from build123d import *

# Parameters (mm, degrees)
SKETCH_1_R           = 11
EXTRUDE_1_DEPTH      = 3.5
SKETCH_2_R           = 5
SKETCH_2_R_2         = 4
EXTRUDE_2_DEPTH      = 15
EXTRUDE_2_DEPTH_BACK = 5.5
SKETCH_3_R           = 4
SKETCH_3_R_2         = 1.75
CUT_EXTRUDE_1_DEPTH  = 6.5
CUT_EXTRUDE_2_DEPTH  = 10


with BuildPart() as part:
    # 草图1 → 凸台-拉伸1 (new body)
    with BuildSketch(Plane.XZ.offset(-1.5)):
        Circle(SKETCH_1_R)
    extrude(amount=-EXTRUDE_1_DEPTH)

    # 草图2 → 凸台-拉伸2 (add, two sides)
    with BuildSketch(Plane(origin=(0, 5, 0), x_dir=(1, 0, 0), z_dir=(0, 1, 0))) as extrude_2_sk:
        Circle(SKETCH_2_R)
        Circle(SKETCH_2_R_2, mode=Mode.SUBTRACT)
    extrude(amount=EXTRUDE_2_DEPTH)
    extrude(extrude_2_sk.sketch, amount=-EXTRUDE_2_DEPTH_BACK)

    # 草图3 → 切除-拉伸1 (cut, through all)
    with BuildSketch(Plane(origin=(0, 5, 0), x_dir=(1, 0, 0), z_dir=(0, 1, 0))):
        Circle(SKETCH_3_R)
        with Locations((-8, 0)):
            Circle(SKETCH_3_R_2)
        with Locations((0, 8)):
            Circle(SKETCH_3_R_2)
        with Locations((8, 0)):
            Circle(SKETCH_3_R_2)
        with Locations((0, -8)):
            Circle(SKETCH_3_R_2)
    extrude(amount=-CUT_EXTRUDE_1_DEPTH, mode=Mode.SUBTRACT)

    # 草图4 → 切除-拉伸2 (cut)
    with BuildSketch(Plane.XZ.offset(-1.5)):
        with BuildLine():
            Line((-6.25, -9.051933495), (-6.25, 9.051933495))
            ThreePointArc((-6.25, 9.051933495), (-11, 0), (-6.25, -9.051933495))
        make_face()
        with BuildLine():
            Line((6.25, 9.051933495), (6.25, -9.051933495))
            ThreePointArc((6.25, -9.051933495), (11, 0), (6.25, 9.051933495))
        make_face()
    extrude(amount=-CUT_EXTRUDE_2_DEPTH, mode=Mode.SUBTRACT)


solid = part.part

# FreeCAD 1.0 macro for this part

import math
import FreeCAD as App
import Part
import Sketcher

doc = App.newDocument("Part")
body = doc.addObject("PartDesign::Body", "Body")

sketch1 = doc.addObject("Sketcher::SketchObject", "Sketch")
body.addObject(sketch1)
sketch1.AttachmentSupport = (doc.XZ_Plane, [""])
sketch1.MapMode = "FlatFace"
sketch1.AttachmentOffset = App.Placement(App.Vector(0, 0, -1.5), App.Rotation())
sketch1.addGeometry(Part.Circle(App.Vector(0, 0, 0), App.Vector(0, 0, 1), 11), False)
sketch1.addConstraint(Sketcher.Constraint("Coincident", 0, 3, -1, 1))
sketch1.addConstraint(Sketcher.Constraint("Diameter", 0, 22.0))
pad1 = doc.addObject("PartDesign::Pad", "Pad")
body.addObject(pad1)
pad1.Profile = sketch1
pad1.Length = 3.5
pad1.Reversed = True

sketch2 = doc.addObject("Sketcher::SketchObject", "Sketch001")
body.addObject(sketch2)
sketch2.AttachmentSupport = (doc.XZ_Plane, [""])
sketch2.MapMode = "FlatFace"
sketch2.AttachmentOffset = App.Placement(App.Vector(0, 0, -5), App.Rotation())
sketch2.addGeometry(Part.Circle(App.Vector(0, 0, 0), App.Vector(0, 0, 1), 5), False)
sketch2.addGeometry(Part.Circle(App.Vector(0, 0, 0), App.Vector(0, 0, 1), 4), False)
sketch2.addConstraint(Sketcher.Constraint("Coincident", 0, 3, -1, 1))
sketch2.addConstraint(Sketcher.Constraint("Coincident", 1, 3, -1, 1))
sketch2.addConstraint(Sketcher.Constraint("Diameter", 0, 10.0))
sketch2.addConstraint(Sketcher.Constraint("Diameter", 1, 8.0))
pad2 = doc.addObject("PartDesign::Pad", "Pad001")
body.addObject(pad2)
pad2.Profile = sketch2
pad2.Type = "TwoLengths"
pad2.Length = 15
pad2.Length2 = 5.5
pad2.Reversed = True

sketch3 = doc.addObject("Sketcher::SketchObject", "Sketch002")
body.addObject(sketch3)
sketch3.AttachmentSupport = (doc.XZ_Plane, [""])
sketch3.MapMode = "FlatFace"
sketch3.AttachmentOffset = App.Placement(App.Vector(0, 0, -5), App.Rotation())
sketch3.addGeometry(Part.Circle(App.Vector(0, 0, 0), App.Vector(0, 0, 1), 4), False)
sketch3.addGeometry(Part.Circle(App.Vector(-8, 0, 0), App.Vector(0, 0, 1), 1.75), False)
sketch3.addGeometry(Part.Circle(App.Vector(0, -8, 0), App.Vector(0, 0, 1), 1.75), False)
sketch3.addGeometry(Part.Circle(App.Vector(8, 0, 0), App.Vector(0, 0, 1), 1.75), False)
sketch3.addGeometry(Part.Circle(App.Vector(0, 8, 0), App.Vector(0, 0, 1), 1.75), False)
sketch3.addConstraint(Sketcher.Constraint("Coincident", 0, 3, -1, 1))
sketch3.addConstraint(Sketcher.Constraint("Equal", 1, 2))
sketch3.addConstraint(Sketcher.Constraint("Equal", 2, 3))
sketch3.addConstraint(Sketcher.Constraint("Equal", 3, 4))
sketch3.addConstraint(Sketcher.Constraint("Symmetric", 1, 3, 3, 3, -1, 1))
sketch3.addConstraint(Sketcher.Constraint("Symmetric", 2, 3, 4, 3, -1, 1))
sketch3.addConstraint(Sketcher.Constraint("PointOnObject", 1, 3, -1))
sketch3.addConstraint(Sketcher.Constraint("PointOnObject", 2, 3, -2))
sketch3.addConstraint(Sketcher.Constraint("Diameter", 0, 8.0))
sketch3.addConstraint(Sketcher.Constraint("Diameter", 1, 3.5))
sketch3.addConstraint(Sketcher.Constraint("DistanceX", 1, 3, -1, 1, 8.0))
sketch3.addConstraint(Sketcher.Constraint("DistanceY", 2, 3, -1, 1, 8.0))
pocket1 = doc.addObject("PartDesign::Pocket", "Pocket")
body.addObject(pocket1)
pocket1.Profile = sketch3
pocket1.Type = "ThroughAll"
pocket1.Reversed = True

sketch4 = doc.addObject("Sketcher::SketchObject", "Sketch003")
body.addObject(sketch4)
sketch4.AttachmentSupport = (doc.XZ_Plane, [""])
sketch4.MapMode = "FlatFace"
sketch4.AttachmentOffset = App.Placement(App.Vector(0, 0, -1.5), App.Rotation())
sketch4.addGeometry(Part.LineSegment(App.Vector(-6.25, -9.051933, 0), App.Vector(-6.25, 9.051933, 0)), False)
sketch4.addGeometry(Part.ArcOfCircle(Part.Circle(App.Vector(0, 0, 0), App.Vector(0, 0, 1), 11), math.radians(124.623535), math.radians(235.376465)), False)
sketch4.addGeometry(Part.LineSegment(App.Vector(6.25, 9.051933, 0), App.Vector(6.25, -9.051933, 0)), False)
sketch4.addGeometry(Part.ArcOfCircle(Part.Circle(App.Vector(0, 0, 0), App.Vector(0, 0, 1), 11), math.radians(-55.376465), math.radians(55.376465)), False)
sketch4.addConstraint(Sketcher.Constraint("Coincident", 0, 1, 1, 2))
sketch4.addConstraint(Sketcher.Constraint("Coincident", 1, 1, 0, 2))
sketch4.addConstraint(Sketcher.Constraint("Coincident", 2, 1, 3, 2))
sketch4.addConstraint(Sketcher.Constraint("Coincident", 3, 1, 2, 2))
sketch4.addConstraint(Sketcher.Constraint("Vertical", 0))
sketch4.addConstraint(Sketcher.Constraint("Vertical", 2))
sketch4.addConstraint(Sketcher.Constraint("Coincident", 1, 3, -1, 1))
sketch4.addConstraint(Sketcher.Constraint("Coincident", 3, 3, -1, 1))
sketch4.addConstraint(Sketcher.Constraint("Equal", 1, 3))
sketch4.addConstraint(Sketcher.Constraint("Horizontal", 1, 1, 2, 1))
sketch4.addConstraint(Sketcher.Constraint("Radius", 1, 11.0))
sketch4.addConstraint(Sketcher.Constraint("DistanceX", 1, 1, 2, 1, 12.5))
pocket2 = doc.addObject("PartDesign::Pocket", "Pocket001")
body.addObject(pocket2)
pocket2.Profile = sketch4
pocket2.Length = 10

doc.recompute()
